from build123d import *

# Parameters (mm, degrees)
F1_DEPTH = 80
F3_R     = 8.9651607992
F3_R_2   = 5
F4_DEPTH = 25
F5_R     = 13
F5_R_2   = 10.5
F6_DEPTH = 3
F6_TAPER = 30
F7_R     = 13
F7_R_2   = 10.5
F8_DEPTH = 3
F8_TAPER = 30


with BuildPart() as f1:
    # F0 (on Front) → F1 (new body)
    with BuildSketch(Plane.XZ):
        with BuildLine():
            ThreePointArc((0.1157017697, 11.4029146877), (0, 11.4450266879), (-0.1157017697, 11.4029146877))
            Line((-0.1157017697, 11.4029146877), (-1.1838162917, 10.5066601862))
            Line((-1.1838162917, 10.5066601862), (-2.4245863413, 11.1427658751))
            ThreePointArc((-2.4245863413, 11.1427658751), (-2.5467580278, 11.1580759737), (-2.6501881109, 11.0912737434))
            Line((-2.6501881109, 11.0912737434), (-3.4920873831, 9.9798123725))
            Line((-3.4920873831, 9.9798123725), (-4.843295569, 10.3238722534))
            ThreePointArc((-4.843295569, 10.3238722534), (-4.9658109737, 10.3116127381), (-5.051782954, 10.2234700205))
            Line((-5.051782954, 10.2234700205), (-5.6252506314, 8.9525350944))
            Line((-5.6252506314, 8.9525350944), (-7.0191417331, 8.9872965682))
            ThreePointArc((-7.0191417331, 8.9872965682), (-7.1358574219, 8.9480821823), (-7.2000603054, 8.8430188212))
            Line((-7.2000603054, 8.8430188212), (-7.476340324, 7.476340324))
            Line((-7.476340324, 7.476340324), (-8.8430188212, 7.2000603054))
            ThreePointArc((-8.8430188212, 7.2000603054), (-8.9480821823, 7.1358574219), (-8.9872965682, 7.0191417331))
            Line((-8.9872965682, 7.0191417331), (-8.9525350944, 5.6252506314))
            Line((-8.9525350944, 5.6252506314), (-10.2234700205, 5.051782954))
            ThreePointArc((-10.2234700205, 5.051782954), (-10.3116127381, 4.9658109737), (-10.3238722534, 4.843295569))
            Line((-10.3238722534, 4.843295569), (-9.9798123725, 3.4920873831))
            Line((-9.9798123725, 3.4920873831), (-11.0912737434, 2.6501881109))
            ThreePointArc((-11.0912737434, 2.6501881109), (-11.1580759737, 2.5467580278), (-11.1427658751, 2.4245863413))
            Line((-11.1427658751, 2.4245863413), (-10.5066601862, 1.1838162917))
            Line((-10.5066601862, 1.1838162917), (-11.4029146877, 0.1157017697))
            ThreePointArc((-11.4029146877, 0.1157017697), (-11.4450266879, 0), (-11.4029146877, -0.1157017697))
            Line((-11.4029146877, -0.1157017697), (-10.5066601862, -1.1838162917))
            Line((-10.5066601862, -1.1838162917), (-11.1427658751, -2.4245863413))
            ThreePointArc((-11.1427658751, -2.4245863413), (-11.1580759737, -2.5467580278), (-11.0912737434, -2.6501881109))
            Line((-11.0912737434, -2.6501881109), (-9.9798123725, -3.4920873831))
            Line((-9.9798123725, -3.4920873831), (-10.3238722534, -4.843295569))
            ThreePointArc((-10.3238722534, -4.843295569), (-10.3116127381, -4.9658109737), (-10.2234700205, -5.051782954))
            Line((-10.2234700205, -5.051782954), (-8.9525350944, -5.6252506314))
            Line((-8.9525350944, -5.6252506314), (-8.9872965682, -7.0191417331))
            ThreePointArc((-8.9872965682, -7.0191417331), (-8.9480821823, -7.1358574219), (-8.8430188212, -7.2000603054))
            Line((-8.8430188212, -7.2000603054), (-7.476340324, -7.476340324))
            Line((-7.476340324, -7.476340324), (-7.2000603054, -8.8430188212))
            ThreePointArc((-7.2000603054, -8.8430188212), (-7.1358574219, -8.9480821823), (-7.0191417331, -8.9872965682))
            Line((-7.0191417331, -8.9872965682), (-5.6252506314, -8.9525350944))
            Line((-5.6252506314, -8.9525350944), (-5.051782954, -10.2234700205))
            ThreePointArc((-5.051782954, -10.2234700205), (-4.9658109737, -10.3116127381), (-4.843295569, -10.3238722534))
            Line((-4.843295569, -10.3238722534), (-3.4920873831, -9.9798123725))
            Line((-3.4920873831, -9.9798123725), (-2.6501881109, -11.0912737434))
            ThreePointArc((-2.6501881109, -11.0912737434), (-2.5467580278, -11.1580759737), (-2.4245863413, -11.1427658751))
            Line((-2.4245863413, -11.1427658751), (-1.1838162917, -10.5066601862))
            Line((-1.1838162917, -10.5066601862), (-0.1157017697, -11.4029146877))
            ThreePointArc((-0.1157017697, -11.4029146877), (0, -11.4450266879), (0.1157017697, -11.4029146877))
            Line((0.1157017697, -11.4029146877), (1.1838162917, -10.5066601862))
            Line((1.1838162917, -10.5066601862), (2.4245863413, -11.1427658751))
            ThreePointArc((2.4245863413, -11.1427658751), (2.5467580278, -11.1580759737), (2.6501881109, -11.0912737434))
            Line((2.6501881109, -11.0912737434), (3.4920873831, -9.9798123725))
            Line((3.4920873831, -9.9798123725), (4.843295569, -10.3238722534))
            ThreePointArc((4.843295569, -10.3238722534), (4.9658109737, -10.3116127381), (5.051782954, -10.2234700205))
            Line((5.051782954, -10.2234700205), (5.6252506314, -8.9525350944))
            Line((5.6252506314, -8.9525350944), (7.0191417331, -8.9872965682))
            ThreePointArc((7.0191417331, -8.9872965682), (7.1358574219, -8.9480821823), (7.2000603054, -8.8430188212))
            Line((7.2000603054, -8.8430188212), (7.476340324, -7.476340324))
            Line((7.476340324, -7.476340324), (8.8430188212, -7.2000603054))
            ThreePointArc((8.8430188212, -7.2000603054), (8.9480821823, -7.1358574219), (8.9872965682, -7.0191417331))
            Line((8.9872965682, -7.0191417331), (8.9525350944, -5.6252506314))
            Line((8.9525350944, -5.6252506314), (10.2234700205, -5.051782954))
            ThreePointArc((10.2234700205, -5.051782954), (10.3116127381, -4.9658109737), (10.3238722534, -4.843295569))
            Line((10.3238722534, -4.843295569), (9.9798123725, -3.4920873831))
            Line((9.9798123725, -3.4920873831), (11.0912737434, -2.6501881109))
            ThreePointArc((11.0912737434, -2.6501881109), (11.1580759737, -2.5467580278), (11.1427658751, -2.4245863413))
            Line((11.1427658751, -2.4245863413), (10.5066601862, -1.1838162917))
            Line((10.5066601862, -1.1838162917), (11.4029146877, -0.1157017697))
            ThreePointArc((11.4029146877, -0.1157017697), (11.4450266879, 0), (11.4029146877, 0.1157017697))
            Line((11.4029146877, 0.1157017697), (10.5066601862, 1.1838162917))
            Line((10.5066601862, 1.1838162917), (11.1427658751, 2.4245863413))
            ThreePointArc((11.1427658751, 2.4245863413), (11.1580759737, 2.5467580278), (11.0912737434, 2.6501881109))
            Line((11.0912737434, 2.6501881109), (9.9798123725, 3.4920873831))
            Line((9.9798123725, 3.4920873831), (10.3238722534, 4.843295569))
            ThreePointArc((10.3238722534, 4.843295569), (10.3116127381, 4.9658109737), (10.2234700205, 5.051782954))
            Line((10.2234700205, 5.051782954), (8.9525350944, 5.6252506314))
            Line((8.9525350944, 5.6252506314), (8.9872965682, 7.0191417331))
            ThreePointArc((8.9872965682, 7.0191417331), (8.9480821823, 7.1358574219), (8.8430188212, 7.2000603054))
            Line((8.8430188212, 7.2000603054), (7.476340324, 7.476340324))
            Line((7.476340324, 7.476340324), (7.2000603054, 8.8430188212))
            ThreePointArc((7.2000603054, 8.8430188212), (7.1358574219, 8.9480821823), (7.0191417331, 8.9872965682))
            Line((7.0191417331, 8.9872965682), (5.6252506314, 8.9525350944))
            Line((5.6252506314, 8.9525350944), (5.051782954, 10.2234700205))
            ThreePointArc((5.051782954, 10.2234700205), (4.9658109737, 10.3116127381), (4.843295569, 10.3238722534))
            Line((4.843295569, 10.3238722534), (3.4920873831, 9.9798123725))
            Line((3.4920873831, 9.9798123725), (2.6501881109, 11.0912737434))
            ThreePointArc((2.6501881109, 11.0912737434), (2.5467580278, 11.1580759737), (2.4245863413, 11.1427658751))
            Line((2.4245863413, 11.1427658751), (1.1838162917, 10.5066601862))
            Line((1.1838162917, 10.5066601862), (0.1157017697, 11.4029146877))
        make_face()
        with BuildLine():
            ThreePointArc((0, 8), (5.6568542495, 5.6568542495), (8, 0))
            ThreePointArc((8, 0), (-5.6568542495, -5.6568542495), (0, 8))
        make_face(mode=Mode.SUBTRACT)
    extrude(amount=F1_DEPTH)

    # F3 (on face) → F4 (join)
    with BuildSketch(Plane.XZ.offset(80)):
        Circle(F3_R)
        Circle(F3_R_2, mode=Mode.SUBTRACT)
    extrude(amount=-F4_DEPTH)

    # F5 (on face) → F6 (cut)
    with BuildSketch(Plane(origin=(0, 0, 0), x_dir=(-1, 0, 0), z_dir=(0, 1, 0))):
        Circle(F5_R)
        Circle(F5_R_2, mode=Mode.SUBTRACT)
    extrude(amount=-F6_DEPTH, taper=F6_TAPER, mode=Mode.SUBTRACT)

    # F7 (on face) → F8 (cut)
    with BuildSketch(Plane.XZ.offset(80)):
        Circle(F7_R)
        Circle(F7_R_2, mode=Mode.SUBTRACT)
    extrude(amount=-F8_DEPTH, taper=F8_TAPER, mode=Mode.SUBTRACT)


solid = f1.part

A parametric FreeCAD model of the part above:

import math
import FreeCAD as App
import Part
import Sketcher

V = App.Vector
Q = App.Units.Quantity

doc = App.newDocument("Part")
body = doc.addObject("PartDesign::Body", "Body")

# Sketch on XZ plane
sketch1 = body.newObject("Sketcher::SketchObject", "Sketch")
sketch1.AttachmentSupport = (doc.getObject("XZ_Plane"), [""])
sketch1.MapMode = "FlatFace"
sketch1.addGeometry([
    Part.ArcOfCircle(Part.Circle(V(0, 11.27, 0), V(0, 0, 1), 0.18), math.radians(50), math.radians(130)),  # 0
    Part.LineSegment(V(-0.12, 11.4, 0), V(-1.18, 10.51, 0)),  # 1
    Part.LineSegment(V(-1.18, 10.51, 0), V(-2.42, 11.14, 0)),  # 2
    Part.ArcOfCircle(Part.Circle(V(-2.51, 10.98, 0), V(0, 0, 1), 0.18), math.radians(63), math.radians(143)),  # 3
    Part.LineSegment(V(-2.65, 11.09, 0), V(-3.49, 9.98, 0)),  # 4
    Part.LineSegment(V(-3.49, 9.98, 0), V(-4.84, 10.32, 0)),  # 5
    Part.ArcOfCircle(Part.Circle(V(-4.89, 10.15, 0), V(0, 0, 1), 0.18), math.radians(76), math.radians(156)),  # 6
    Part.LineSegment(V(-5.05, 10.22, 0), V(-5.63, 8.95, 0)),  # 7
    Part.LineSegment(V(-5.63, 8.95, 0), V(-7.02, 8.99, 0)),  # 8
    Part.ArcOfCircle(Part.Circle(V(-7.02, 8.81, 0), V(0, 0, 1), 0.18), math.radians(89), math.radians(169)),  # 9
    Part.LineSegment(V(-7.2, 8.84, 0), V(-7.48, 7.48, 0)),  # 10
    Part.LineSegment(V(-7.48, 7.48, 0), V(-8.84, 7.2, 0)),  # 11
    Part.ArcOfCircle(Part.Circle(V(-8.81, 7.02, 0), V(0, 0, 1), 0.18), math.radians(101), math.radians(181)),  # 12
    Part.LineSegment(V(-8.99, 7.02, 0), V(-8.95, 5.63, 0)),  # 13
    Part.LineSegment(V(-8.95, 5.63, 0), V(-10.22, 5.05, 0)),  # 14
    Part.ArcOfCircle(Part.Circle(V(-10.15, 4.89, 0), V(0, 0, 1), 0.18), math.radians(114), math.radians(194)),  # 15
    Part.LineSegment(V(-10.32, 4.84, 0), V(-9.98, 3.49, 0)),  # 16
    Part.LineSegment(V(-9.98, 3.49, 0), V(-11.09, 2.65, 0)),  # 17
    Part.ArcOfCircle(Part.Circle(V(-10.98, 2.51, 0), V(0, 0, 1), 0.18), math.radians(127), math.radians(207)),  # 18
    Part.LineSegment(V(-11.14, 2.42, 0), V(-10.51, 1.18, 0)),  # 19
    Part.LineSegment(V(-10.51, 1.18, 0), V(-11.4, 0.12, 0)),  # 20
    Part.ArcOfCircle(Part.Circle(V(-11.27, 0, 0), V(0, 0, 1), 0.18), math.radians(140), math.radians(220)),  # 21
    Part.LineSegment(V(-11.4, -0.12, 0), V(-10.51, -1.18, 0)),  # 22
    Part.LineSegment(V(-10.51, -1.18, 0), V(-11.14, -2.42, 0)),  # 23
    Part.ArcOfCircle(Part.Circle(V(-10.98, -2.51, 0), V(0, 0, 1), 0.18), math.radians(153), math.radians(233)),  # 24
    Part.LineSegment(V(-11.09, -2.65, 0), V(-9.98, -3.49, 0)),  # 25
    Part.LineSegment(V(-9.98, -3.49, 0), V(-10.32, -4.84, 0)),  # 26
    Part.ArcOfCircle(Part.Circle(V(-10.15, -4.89, 0), V(0, 0, 1), 0.18), math.radians(166), math.radians(246)),  # 27
    Part.LineSegment(V(-10.22, -5.05, 0), V(-8.95, -5.63, 0)),  # 28
    Part.LineSegment(V(-8.95, -5.63, 0), V(-8.99, -7.02, 0)),  # 29
    Part.ArcOfCircle(Part.Circle(V(-8.81, -7.02, 0), V(0, 0, 1), 0.18), math.radians(179), math.radians(259)),  # 30
    Part.LineSegment(V(-8.84, -7.2, 0), V(-7.48, -7.48, 0)),  # 31
    Part.LineSegment(V(-7.48, -7.48, 0), V(-7.2, -8.84, 0)),  # 32
    Part.ArcOfCircle(Part.Circle(V(-7.02, -8.81, 0), V(0, 0, 1), 0.18), math.radians(-169), math.radians(-89)),  # 33
    Part.LineSegment(V(-7.02, -8.99, 0), V(-5.63, -8.95, 0)),  # 34
    Part.LineSegment(V(-5.63, -8.95, 0), V(-5.05, -10.22, 0)),  # 35
    Part.ArcOfCircle(Part.Circle(V(-4.89, -10.15, 0), V(0, 0, 1), 0.18), math.radians(-156), math.radians(-76)),  # 36
    Part.LineSegment(V(-4.84, -10.32, 0), V(-3.49, -9.98, 0)),  # 37
    Part.LineSegment(V(-3.49, -9.98, 0), V(-2.65, -11.09, 0)),  # 38
    Part.ArcOfCircle(Part.Circle(V(-2.51, -10.98, 0), V(0, 0, 1), 0.18), math.radians(-143), math.radians(-63)),  # 39
    Part.LineSegment(V(-2.42, -11.14, 0), V(-1.18, -10.51, 0)),  # 40
    Part.LineSegment(V(-1.18, -10.51, 0), V(-0.12, -11.4, 0)),  # 41
    Part.ArcOfCircle(Part.Circle(V(0, -11.27, 0), V(0, 0, 1), 0.18), math.radians(-130), math.radians(-50)),  # 42
    Part.LineSegment(V(0.12, -11.4, 0), V(1.18, -10.51, 0)),  # 43
    Part.LineSegment(V(1.18, -10.51, 0), V(2.42, -11.14, 0)),  # 44
    Part.ArcOfCircle(Part.Circle(V(2.51, -10.98, 0), V(0, 0, 1), 0.18), math.radians(-117), math.radians(-37)),  # 45
    Part.LineSegment(V(2.65, -11.09, 0), V(3.49, -9.98, 0)),  # 46
    Part.LineSegment(V(3.49, -9.98, 0), V(4.84, -10.32, 0)),  # 47
    Part.ArcOfCircle(Part.Circle(V(4.89, -10.15, 0), V(0, 0, 1), 0.18), math.radians(-104), math.radians(-24)),  # 48
    Part.LineSegment(V(5.05, -10.22, 0), V(5.63, -8.95, 0)),  # 49
    Part.LineSegment(V(5.63, -8.95, 0), V(7.02, -8.99, 0)),  # 50
    Part.ArcOfCircle(Part.Circle(V(7.02, -8.81, 0), V(0, 0, 1), 0.18), math.radians(-91), math.radians(-11)),  # 51
    Part.LineSegment(V(7.2, -8.84, 0), V(7.48, -7.48, 0)),  # 52
    Part.LineSegment(V(7.48, -7.48, 0), V(8.84, -7.2, 0)),  # 53
    Part.ArcOfCircle(Part.Circle(V(8.81, -7.02, 0), V(0, 0, 1), 0.18), math.radians(-79), math.radians(1)),  # 54
    Part.LineSegment(V(8.99, -7.02, 0), V(8.95, -5.63, 0)),  # 55
    Part.LineSegment(V(8.95, -5.63, 0), V(10.22, -5.05, 0)),  # 56
    Part.ArcOfCircle(Part.Circle(V(10.15, -4.89, 0), V(0, 0, 1), 0.18), math.radians(-66), math.radians(14)),  # 57
    Part.LineSegment(V(10.32, -4.84, 0), V(9.98, -3.49, 0)),  # 58
    Part.LineSegment(V(9.98, -3.49, 0), V(11.09, -2.65, 0)),  # 59
    Part.ArcOfCircle(Part.Circle(V(10.98, -2.51, 0), V(0, 0, 1), 0.18), math.radians(-53), math.radians(27)),  # 60
    Part.LineSegment(V(11.14, -2.42, 0), V(10.51, -1.18, 0)),  # 61
    Part.LineSegment(V(10.51, -1.18, 0), V(11.4, -0.12, 0)),  # 62
    Part.ArcOfCircle(Part.Circle(V(11.27, 0, 0), V(0, 0, 1), 0.18), math.radians(-40), math.radians(40)),  # 63
    Part.LineSegment(V(11.4, 0.12, 0), V(10.51, 1.18, 0)),  # 64
    Part.LineSegment(V(10.51, 1.18, 0), V(11.14, 2.42, 0)),  # 65
    Part.ArcOfCircle(Part.Circle(V(10.98, 2.51, 0), V(0, 0, 1), 0.18), math.radians(-27), math.radians(53)),  # 66
    Part.LineSegment(V(11.09, 2.65, 0), V(9.98, 3.49, 0)),  # 67
    Part.LineSegment(V(9.98, 3.49, 0), V(10.32, 4.84, 0)),  # 68
    Part.ArcOfCircle(Part.Circle(V(10.15, 4.89, 0), V(0, 0, 1), 0.18), math.radians(-14), math.radians(66)),  # 69
    Part.LineSegment(V(10.22, 5.05, 0), V(8.95, 5.63, 0)),  # 70
    Part.LineSegment(V(8.95, 5.63, 0), V(8.99, 7.02, 0)),  # 71
    Part.ArcOfCircle(Part.Circle(V(8.81, 7.02, 0), V(0, 0, 1), 0.18), math.radians(-1), math.radians(79)),  # 72
    Part.LineSegment(V(8.84, 7.2, 0), V(7.48, 7.48, 0)),  # 73
    Part.LineSegment(V(7.48, 7.48, 0), V(7.2, 8.84, 0)),  # 74
    Part.ArcOfCircle(Part.Circle(V(7.02, 8.81, 0), V(0, 0, 1), 0.18), math.radians(11), math.radians(91)),  # 75
    Part.LineSegment(V(7.02, 8.99, 0), V(5.63, 8.95, 0)),  # 76
    Part.LineSegment(V(5.63, 8.95, 0), V(5.05, 10.22, 0)),  # 77
    Part.ArcOfCircle(Part.Circle(V(4.89, 10.15, 0), V(0, 0, 1), 0.18), math.radians(24), math.radians(104)),  # 78
    Part.LineSegment(V(4.84, 10.32, 0), V(3.49, 9.98, 0)),  # 79
    Part.LineSegment(V(3.49, 9.98, 0), V(2.65, 11.09, 0)),  # 80
    Part.ArcOfCircle(Part.Circle(V(2.51, 10.98, 0), V(0, 0, 1), 0.18), math.radians(37), math.radians(117)),  # 81
    Part.LineSegment(V(2.42, 11.14, 0), V(1.18, 10.51, 0)),  # 82
    Part.LineSegment(V(1.18, 10.51, 0), V(0.12, 11.4, 0)),  # 83
    Part.ArcOfCircle(Part.Circle(V(0, 0, 0), V(0, 0, 1), 8), math.radians(90), math.radians(360)),  # 84
    Part.ArcOfCircle(Part.Circle(V(0, 0, 0), V(0, 0, 1), 8), math.radians(0), math.radians(90)),  # 85
], False)
sketch1.addConstraint([
    Sketcher.Constraint("Tangent", 0, 2, 1, 1),
    Sketcher.Constraint("Coincident", 1, 2, 2, 1),
    Sketcher.Constraint("Tangent", 2, 2, 3, 1),
    Sketcher.Constraint("Tangent", 3, 2, 4, 1),
    Sketcher.Constraint("Coincident", 4, 2, 5, 1),
    Sketcher.Constraint("Tangent", 5, 2, 6, 1),
    Sketcher.Constraint("Tangent", 6, 2, 7, 1),
    Sketcher.Constraint("Coincident", 7, 2, 8, 1),
    Sketcher.Constraint("Tangent", 8, 2, 9, 1),
    Sketcher.Constraint("Tangent", 9, 2, 10, 1),
    Sketcher.Constraint("Coincident", 10, 2, 11, 1),
    Sketcher.Constraint("Tangent", 11, 2, 12, 1),
    Sketcher.Constraint("Tangent", 12, 2, 13, 1),
    Sketcher.Constraint("Coincident", 13, 2, 14, 1),
    Sketcher.Constraint("Tangent", 14, 2, 15, 1),
    Sketcher.Constraint("Tangent", 15, 2, 16, 1),
    Sketcher.Constraint("Coincident", 16, 2, 17, 1),
    Sketcher.Constraint("Tangent", 17, 2, 18, 1),
    Sketcher.Constraint("Tangent", 18, 2, 19, 1),
    Sketcher.Constraint("Coincident", 19, 2, 20, 1),
    Sketcher.Constraint("Tangent", 20, 2, 21, 1),
    Sketcher.Constraint("Tangent", 21, 2, 22, 1),
    Sketcher.Constraint("Coincident", 22, 2, 23, 1),
    Sketcher.Constraint("Tangent", 23, 2, 24, 1),
    Sketcher.Constraint("Tangent", 24, 2, 25, 1),
    Sketcher.Constraint("Coincident", 25, 2, 26, 1),
    Sketcher.Constraint("Tangent", 26, 2, 27, 1),
    Sketcher.Constraint("Tangent", 27, 2, 28, 1),
    Sketcher.Constraint("Coincident", 28, 2, 29, 1),
    Sketcher.Constraint("Tangent", 29, 2, 30, 1),
    Sketcher.Constraint("Tangent", 30, 2, 31, 1),
    Sketcher.Constraint("Coincident", 31, 2, 32, 1),
    Sketcher.Constraint("Tangent", 32, 2, 33, 1),
    Sketcher.Constraint("Tangent", 33, 2, 34, 1),
    Sketcher.Constraint("Coincident", 34, 2, 35, 1),
    Sketcher.Constraint("Tangent", 35, 2, 36, 1),
    Sketcher.Constraint("Tangent", 36, 2, 37, 1),
    Sketcher.Constraint("Coincident", 37, 2, 38, 1),
    Sketcher.Constraint("Tangent", 38, 2, 39, 1),
    Sketcher.Constraint("Tangent", 39, 2, 40, 1),
    Sketcher.Constraint("Coincident", 40, 2, 41, 1),
    Sketcher.Constraint("Tangent", 41, 2, 42, 1),
    Sketcher.Constraint("Tangent", 42, 2, 43, 1),
    Sketcher.Constraint("Coincident", 43, 2, 44, 1),
    Sketcher.Constraint("Tangent", 44, 2, 45, 1),
    Sketcher.Constraint("Tangent", 45, 2, 46, 1),
    Sketcher.Constraint("Coincident", 46, 2, 47, 1),
    Sketcher.Constraint("Tangent", 47, 2, 48, 1),
    Sketcher.Constraint("Tangent", 48, 2, 49, 1),
    Sketcher.Constraint("Coincident", 49, 2, 50, 1),
    Sketcher.Constraint("Tangent", 50, 2, 51, 1),
    Sketcher.Constraint("Tangent", 51, 2, 52, 1),
    Sketcher.Constraint("Coincident", 52, 2, 53, 1),
    Sketcher.Constraint("Tangent", 53, 2, 54, 1),
    Sketcher.Constraint("Tangent", 54, 2, 55, 1),
    Sketcher.Constraint("Coincident", 55, 2, 56, 1),
    Sketcher.Constraint("Tangent", 56, 2, 57, 1),
    Sketcher.Constraint("Tangent", 57, 2, 58, 1),
    Sketcher.Constraint("Coincident", 58, 2, 59, 1),
    Sketcher.Constraint("Tangent", 59, 2, 60, 1),
    Sketcher.Constraint("Tangent", 60, 2, 61, 1),
    Sketcher.Constraint("Coincident", 61, 2, 62, 1),
    Sketcher.Constraint("Tangent", 62, 2, 63, 1),
    Sketcher.Constraint("Tangent", 63, 2, 64, 1),
    Sketcher.Constraint("Coincident", 64, 2, 65, 1),
    Sketcher.Constraint("Tangent", 65, 2, 66, 1),
    Sketcher.Constraint("Tangent", 66, 2, 67, 1),
    Sketcher.Constraint("Coincident", 67, 2, 68, 1),
    Sketcher.Constraint("Tangent", 68, 2, 69, 1),
    Sketcher.Constraint("Tangent", 69, 2, 70, 1),
    Sketcher.Constraint("Coincident", 70, 2, 71, 1),
    Sketcher.Constraint("Tangent", 71, 2, 72, 1),
    Sketcher.Constraint("Tangent", 72, 2, 73, 1),
    Sketcher.Constraint("Coincident", 73, 2, 74, 1),
    Sketcher.Constraint("Tangent", 74, 2, 75, 1),
    Sketcher.Constraint("Tangent", 75, 2, 76, 1),
    Sketcher.Constraint("Coincident", 76, 2, 77, 1),
    Sketcher.Constraint("Tangent", 77, 2, 78, 1),
    Sketcher.Constraint("Tangent", 78, 2, 79, 1),
    Sketcher.Constraint("Coincident", 79, 2, 80, 1),
    Sketcher.Constraint("Tangent", 80, 2, 81, 1),
    Sketcher.Constraint("Tangent", 81, 2, 82, 1),
    Sketcher.Constraint("Coincident", 82, 2, 83, 1),
    Sketcher.Constraint("Tangent", 83, 2, 0, 1),
    Sketcher.Constraint("Tangent", 84, 1, 85, 2),
    Sketcher.Constraint("Coincident", 85, 1, 84, 2),
    Sketcher.Constraint("Coincident", 84, 3, -1, 1),
    Sketcher.Constraint("Equal", 0, 3),
    Sketcher.Constraint("Equal", 3, 6),
    Sketcher.Constraint("Equal", 6, 9),
    Sketcher.Constraint("Equal", 9, 12),
    Sketcher.Constraint("Equal", 12, 15),
    Sketcher.Constraint("Equal", 15, 18),
    Sketcher.Constraint("Equal", 18, 21),
    Sketcher.Constraint("Equal", 21, 24),
    Sketcher.Constraint("Equal", 24, 27),
    Sketcher.Constraint("Equal", 27, 30),
    Sketcher.Constraint("Equal", 30, 33),
    Sketcher.Constraint("Equal", 33, 36),
    Sketcher.Constraint("Equal", 36, 39),
    Sketcher.Constraint("Equal", 39, 42),
    Sketcher.Constraint("Equal", 42, 45),
    Sketcher.Constraint("Equal", 45, 48),
    Sketcher.Constraint("Equal", 48, 51),
    Sketcher.Constraint("Equal", 51, 54),
    Sketcher.Constraint("Equal", 54, 57),
    Sketcher.Constraint("Equal", 57, 60),
    Sketcher.Constraint("Equal", 60, 63),
    Sketcher.Constraint("Equal", 63, 66),
    Sketcher.Constraint("Equal", 66, 69),
    Sketcher.Constraint("Equal", 69, 72),
    Sketcher.Constraint("Equal", 72, 75),
    Sketcher.Constraint("Equal", 75, 78),
    Sketcher.Constraint("Equal", 78, 81),
    Sketcher.Constraint("Symmetric", 0, 3, 42, 3, -1, 1),
    Sketcher.Constraint("Symmetric", 3, 3, 45, 3, -1, 1),
    Sketcher.Constraint("Symmetric", 6, 3, 48, 3, -1, 1),
    Sketcher.Constraint("Symmetric", 9, 3, 51, 3, -1, 1),
    Sketcher.Constraint("Symmetric", 12, 3, 54, 3, -1, 1),
    Sketcher.Constraint("Symmetric", 15, 3, 57, 3, -1, 1),
    Sketcher.Constraint("Symmetric", 18, 3, 60, 3, -1, 1),
    Sketcher.Constraint("Symmetric", 21, 3, 63, 3, -1, 1),
    Sketcher.Constraint("Symmetric", 24, 3, 66, 3, -1, 1),
    Sketcher.Constraint("Symmetric", 27, 3, 69, 3, -1, 1),
    Sketcher.Constraint("Symmetric", 30, 3, 72, 3, -1, 1),
    Sketcher.Constraint("Symmetric", 33, 3, 75, 3, -1, 1),
    Sketcher.Constraint("Symmetric", 36, 3, 78, 3, -1, 1),
    Sketcher.Constraint("Symmetric", 39, 3, 81, 3, -1, 1),
    Sketcher.Constraint("Symmetric", 1, 2, 43, 2, -1, 1),
    Sketcher.Constraint("Symmetric", 4, 2, 46, 2, -1, 1),
    Sketcher.Constraint("Symmetric", 7, 2, 49, 2, -1, 1),
    Sketcher.Constraint("Symmetric", 10, 2, 52, 2, -1, 1),
    Sketcher.Constraint("Symmetric", 13, 2, 55, 2, -1, 1),
    Sketcher.Constraint("Symmetric", 16, 2, 58, 2, -1, 1),
    Sketcher.Constraint("Symmetric", 19, 2, 61, 2, -1, 1),
    Sketcher.Constraint("Symmetric", 22, 2, 64, 2, -1, 1),
    Sketcher.Constraint("Symmetric", 25, 2, 67, 2, -1, 1),
    Sketcher.Constraint("Symmetric", 28, 2, 70, 2, -1, 1),
    Sketcher.Constraint("Symmetric", 31, 2, 73, 2, -1, 1),
    Sketcher.Constraint("Symmetric", 34, 2, 76, 2, -1, 1),
    Sketcher.Constraint("Symmetric", 37, 2, 79, 2, -1, 1),
    Sketcher.Constraint("Symmetric", 40, 2, 82, 2, -1, 1),
    Sketcher.Constraint("Symmetric", 39, 3, 45, 3, -2),
    Sketcher.Constraint("Symmetric", 36, 3, 48, 3, -2),
    Sketcher.Constraint("Symmetric", 33, 3, 51, 3, -2),
    Sketcher.Constraint("Symmetric", 30, 3, 54, 3, -2),
    Sketcher.Constraint("Symmetric", 27, 3, 57, 3, -2),
    Sketcher.Constraint("Symmetric", 24, 3, 60, 3, -2),
    Sketcher.Constraint("Symmetric", 41, 2, 42, 2, -2),
    Sketcher.Constraint("Symmetric", 37, 2, 46, 2, -2),
    Sketcher.Constraint("Symmetric", 34, 2, 49, 2, -2),
    Sketcher.Constraint("Symmetric", 31, 2, 52, 2, -2),
    Sketcher.Constraint("Symmetric", 28, 2, 55, 2, -2),
    Sketcher.Constraint("Symmetric", 25, 2, 58, 2, -2),
    Sketcher.Constraint("Symmetric", 22, 2, 61, 2, -2),
    Sketcher.Constraint("PointOnObject", 21, 3, -1),
    Sketcher.Constraint("PointOnObject", 84, 1, -2),
    Sketcher.Constraint("PointOnObject", 85, 1, -1),
    Sketcher.Constraint("Perpendicular", 1, 22),
    Sketcher.Constraint("Perpendicular", 2, 23),
    Sketcher.Constraint("Perpendicular", 4, 25),
    Sketcher.Constraint("Perpendicular", 5, 26),
    Sketcher.Constraint("Perpendicular", 7, 28),
    Sketcher.Constraint("Perpendicular", 8, 29),
    Sketcher.Constraint("Perpendicular", 10, 31),
    Sketcher.Constraint("Perpendicular", 19, 40),
    Sketcher.Constraint("Equal", 1, 2),
    Sketcher.Constraint("Equal", 2, 4),
    Sketcher.Constraint("Equal", 4, 5),
    Sketcher.Constraint("Equal", 5, 7),
    Sketcher.Constraint("Equal", 7, 8),
    Sketcher.Constraint("Equal", 8, 10),
    Sketcher.Constraint("Equal", 10, 11),
    Sketcher.Constraint("Equal", 11, 13),
    Sketcher.Constraint("Equal", 13, 14),
    Sketcher.Constraint("Equal", 14, 16),
    Sketcher.Constraint("Equal", 16, 17),
    Sketcher.Constraint("Equal", 17, 19),
    Sketcher.Constraint("Equal", 19, 20),
    Sketcher.Constraint("Radius", 84, Q("8 mm")),
    Sketcher.Constraint("Angle", 1, Q("-140 deg")),
    Sketcher.Constraint("Radius", 0, Q("0.18 mm")),
    Sketcher.Constraint("DistanceY", -1, 1, 3, 3, Q("10.982589 mm")),
    Sketcher.Constraint("DistanceX", 6, 3, -1, 1, Q("4.887712 mm")),
    Sketcher.Constraint("DistanceY", -1, 1, 6, 3, Q("10.149438 mm")),
    Sketcher.Constraint("DistanceX", 9, 3, -1, 1, Q("7.023629 mm")),
    Sketcher.Constraint("DistanceY", -1, 1, 1, 2, Q("10.50666 mm")),
    Sketcher.Constraint("DistanceX", 3, 2, -1, 1, Q("2.650188 mm")),
    Sketcher.Constraint("DistanceX", 7, 2, -1, 1, Q("5.625251 mm")),
])
pad1 = body.newObject("PartDesign::Pad", "Pad")
pad1.Profile = sketch1
pad1.Length = 80

# Sketch on XZ plane
sketch2 = body.newObject("Sketcher::SketchObject", "Sketch001")
sketch2.AttachmentSupport = (doc.getObject("XZ_Plane"), [""])
sketch2.MapMode = "FlatFace"
sketch2.AttachmentOffset = App.Placement(V(0, 0, 80), App.Rotation())
sketch2.addGeometry([
    Part.Circle(V(0, 0, 0), V(0, 0, 1), 9),
    Part.Circle(V(0, 0, 0), V(0, 0, 1), 5),
], False)
sketch2.addConstraint([
    Sketcher.Constraint("Coincident", 0, 3, -1, 1),
    Sketcher.Constraint("Coincident", 1, 3, -1, 1),
    Sketcher.Constraint("Diameter", 1, Q("10 mm")),
    Sketcher.Constraint("Diameter", 0, Q("17.930322 mm")),
])
pad2 = body.newObject("PartDesign::Pad", "Pad001")
pad2.Profile = sketch2
pad2.Length = 25
pad2.Reversed = True

# Sketch on XZ plane
sketch3 = body.newObject("Sketcher::SketchObject", "Sketch002")
sketch3.AttachmentSupport = (doc.getObject("XZ_Plane"), [""])
sketch3.MapMode = "FlatFace"
sketch3.addGeometry([
    Part.Circle(V(0, 0, 0), V(0, 0, 1), 13),
    Part.Circle(V(0, 0, 0), V(0, 0, 1), 10),
], False)
sketch3.addConstraint([
    Sketcher.Constraint("Coincident", 0, 3, -1, 1),
    Sketcher.Constraint("Coincident", 1, 3, -1, 1),
    Sketcher.Constraint("Diameter", 0, Q("26 mm")),
    Sketcher.Constraint("Diameter", 1, Q("21 mm")),
])
pocket1 = body.newObject("PartDesign::Pocket", "Pocket")
pocket1.Profile = sketch3
pocket1.Length = 3
pocket1.Reversed = True
pocket1.TaperAngle = 30

# Sketch on XZ plane
sketch4 = body.newObject("Sketcher::SketchObject", "Sketch003")
sketch4.AttachmentSupport = (doc.getObject("XZ_Plane"), [""])
sketch4.MapMode = "FlatFace"
sketch4.AttachmentOffset = App.Placement(V(0, 0, 80), App.Rotation())
sketch4.addGeometry([
    Part.Circle(V(0, 0, 0), V(0, 0, 1), 13),
    Part.Circle(V(0, 0, 0), V(0, 0, 1), 10),
], False)
sketch4.addConstraint([
    Sketcher.Constraint("Coincident", 0, 3, -1, 1),
    Sketcher.Constraint("Coincident", 1, 3, -1, 1),
    Sketcher.Constraint("Diameter", 0, Q("26 mm")),
    Sketcher.Constraint("Diameter", 1, Q("21 mm")),
])
pocket2 = body.newObject("PartDesign::Pocket", "Pocket001")
pocket2.Profile = sketch4
pocket2.Length = 3
pocket2.TaperAngle = 30

doc.recompute()
